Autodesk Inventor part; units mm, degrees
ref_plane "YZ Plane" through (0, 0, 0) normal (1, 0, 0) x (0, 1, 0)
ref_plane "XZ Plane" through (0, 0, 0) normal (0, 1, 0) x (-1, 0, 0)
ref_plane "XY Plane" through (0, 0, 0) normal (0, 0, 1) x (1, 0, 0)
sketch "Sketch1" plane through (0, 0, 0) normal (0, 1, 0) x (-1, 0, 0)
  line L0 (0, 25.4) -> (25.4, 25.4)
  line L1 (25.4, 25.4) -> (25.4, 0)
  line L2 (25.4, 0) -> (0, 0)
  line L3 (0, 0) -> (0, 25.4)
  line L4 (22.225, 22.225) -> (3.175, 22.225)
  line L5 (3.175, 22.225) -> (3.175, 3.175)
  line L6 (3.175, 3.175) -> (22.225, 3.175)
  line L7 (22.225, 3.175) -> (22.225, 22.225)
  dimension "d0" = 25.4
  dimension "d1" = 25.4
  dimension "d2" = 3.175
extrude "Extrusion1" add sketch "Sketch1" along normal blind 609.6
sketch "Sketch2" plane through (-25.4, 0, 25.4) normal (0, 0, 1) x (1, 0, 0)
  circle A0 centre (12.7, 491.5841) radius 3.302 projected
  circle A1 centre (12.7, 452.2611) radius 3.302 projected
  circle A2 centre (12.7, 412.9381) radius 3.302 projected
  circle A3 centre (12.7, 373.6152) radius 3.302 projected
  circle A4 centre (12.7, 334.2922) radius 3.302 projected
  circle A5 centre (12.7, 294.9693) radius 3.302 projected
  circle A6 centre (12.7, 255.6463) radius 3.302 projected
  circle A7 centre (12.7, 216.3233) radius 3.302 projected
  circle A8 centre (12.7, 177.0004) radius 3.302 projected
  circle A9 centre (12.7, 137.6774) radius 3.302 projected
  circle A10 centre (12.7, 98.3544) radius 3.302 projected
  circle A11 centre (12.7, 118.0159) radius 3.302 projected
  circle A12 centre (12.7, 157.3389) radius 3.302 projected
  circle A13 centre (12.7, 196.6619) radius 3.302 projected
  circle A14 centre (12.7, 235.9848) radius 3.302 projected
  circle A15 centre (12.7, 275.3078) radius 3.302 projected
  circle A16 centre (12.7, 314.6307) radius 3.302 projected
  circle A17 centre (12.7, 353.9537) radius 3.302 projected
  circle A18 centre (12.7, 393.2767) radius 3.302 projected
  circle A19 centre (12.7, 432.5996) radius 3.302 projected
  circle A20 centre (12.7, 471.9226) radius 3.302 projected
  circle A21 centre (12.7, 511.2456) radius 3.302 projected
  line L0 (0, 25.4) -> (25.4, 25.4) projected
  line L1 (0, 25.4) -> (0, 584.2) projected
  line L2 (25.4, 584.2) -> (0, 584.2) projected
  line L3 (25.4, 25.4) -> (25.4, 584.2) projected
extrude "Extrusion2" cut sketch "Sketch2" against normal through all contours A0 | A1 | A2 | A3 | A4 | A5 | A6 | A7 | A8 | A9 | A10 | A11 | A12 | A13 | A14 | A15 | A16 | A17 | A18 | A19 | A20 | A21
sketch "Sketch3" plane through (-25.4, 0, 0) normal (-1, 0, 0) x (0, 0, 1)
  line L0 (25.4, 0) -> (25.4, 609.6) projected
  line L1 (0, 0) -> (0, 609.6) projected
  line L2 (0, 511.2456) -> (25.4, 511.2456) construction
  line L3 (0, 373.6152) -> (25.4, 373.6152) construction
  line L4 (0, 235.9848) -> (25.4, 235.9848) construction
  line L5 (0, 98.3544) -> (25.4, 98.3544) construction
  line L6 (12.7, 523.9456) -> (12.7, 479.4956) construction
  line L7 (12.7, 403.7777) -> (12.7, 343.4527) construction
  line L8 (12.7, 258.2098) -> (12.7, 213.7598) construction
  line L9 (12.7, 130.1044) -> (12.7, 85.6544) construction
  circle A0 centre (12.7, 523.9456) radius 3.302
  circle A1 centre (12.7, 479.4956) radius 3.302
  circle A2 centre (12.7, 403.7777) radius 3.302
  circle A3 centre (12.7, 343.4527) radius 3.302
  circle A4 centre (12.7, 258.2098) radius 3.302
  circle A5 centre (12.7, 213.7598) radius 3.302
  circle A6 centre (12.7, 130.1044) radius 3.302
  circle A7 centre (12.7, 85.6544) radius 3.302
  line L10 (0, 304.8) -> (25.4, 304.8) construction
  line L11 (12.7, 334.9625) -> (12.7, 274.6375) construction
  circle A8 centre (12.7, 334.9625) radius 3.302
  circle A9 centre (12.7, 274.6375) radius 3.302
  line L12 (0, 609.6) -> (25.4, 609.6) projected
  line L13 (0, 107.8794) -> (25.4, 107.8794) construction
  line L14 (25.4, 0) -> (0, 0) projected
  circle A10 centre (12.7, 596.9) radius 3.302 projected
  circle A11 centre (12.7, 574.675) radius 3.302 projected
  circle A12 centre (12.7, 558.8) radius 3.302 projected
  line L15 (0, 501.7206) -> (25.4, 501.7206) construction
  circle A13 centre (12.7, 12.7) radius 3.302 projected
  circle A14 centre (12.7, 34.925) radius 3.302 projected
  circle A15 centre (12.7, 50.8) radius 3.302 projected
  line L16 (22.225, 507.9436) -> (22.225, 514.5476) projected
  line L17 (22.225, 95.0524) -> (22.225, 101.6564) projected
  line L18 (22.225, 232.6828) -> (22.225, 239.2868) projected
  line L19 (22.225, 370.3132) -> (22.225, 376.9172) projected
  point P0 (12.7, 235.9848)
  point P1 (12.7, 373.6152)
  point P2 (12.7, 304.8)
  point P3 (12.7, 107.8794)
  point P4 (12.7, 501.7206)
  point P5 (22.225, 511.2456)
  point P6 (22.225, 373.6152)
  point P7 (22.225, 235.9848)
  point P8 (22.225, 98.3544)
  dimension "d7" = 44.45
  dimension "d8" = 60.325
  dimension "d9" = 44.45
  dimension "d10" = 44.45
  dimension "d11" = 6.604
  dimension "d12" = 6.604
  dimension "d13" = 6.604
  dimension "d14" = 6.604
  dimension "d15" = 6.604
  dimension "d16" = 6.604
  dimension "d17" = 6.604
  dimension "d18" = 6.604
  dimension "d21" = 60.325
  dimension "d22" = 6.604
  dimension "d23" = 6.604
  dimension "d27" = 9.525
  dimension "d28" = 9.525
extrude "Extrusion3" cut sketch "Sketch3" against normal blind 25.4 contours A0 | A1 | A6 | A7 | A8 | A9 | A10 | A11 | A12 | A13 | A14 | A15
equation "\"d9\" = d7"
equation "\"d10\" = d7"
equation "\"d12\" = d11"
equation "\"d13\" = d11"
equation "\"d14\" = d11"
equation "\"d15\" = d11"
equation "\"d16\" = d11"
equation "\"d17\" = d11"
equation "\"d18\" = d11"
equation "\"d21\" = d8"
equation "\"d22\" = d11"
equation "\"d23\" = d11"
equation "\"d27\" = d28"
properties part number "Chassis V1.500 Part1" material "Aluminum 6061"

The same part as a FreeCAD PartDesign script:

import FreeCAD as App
import Part
import Sketcher
Q = App.Units.Quantity

doc = App.newDocument("Part")
body = doc.addObject("PartDesign::Body", "Body")

# Sketch on XZ plane
sketch1 = doc.addObject("Sketcher::SketchObject", "Sketch")
body.addObject(sketch1)
sketch1.AttachmentSupport = (doc.XZ_Plane, [""])
sketch1.MapMode = "FlatFace"
sketch1.addGeometry(Part.LineSegment(App.Vector(-25.4, 25.4, 0), App.Vector(0, 25.4, 0)), False)
sketch1.addGeometry(Part.LineSegment(App.Vector(0, 25.4, 0), App.Vector(0, 0, 0)), False)
sketch1.addGeometry(Part.LineSegment(App.Vector(0, 0, 0), App.Vector(-25.4, 0, 0)), False)
sketch1.addGeometry(Part.LineSegment(App.Vector(-25.4, 0, 0), App.Vector(-25.4, 25.4, 0)), False)
sketch1.addGeometry(Part.LineSegment(App.Vector(-3.175, 22.225, 0), App.Vector(-22.225, 22.225, 0)), False)
sketch1.addGeometry(Part.LineSegment(App.Vector(-22.225, 22.225, 0), App.Vector(-22.225, 3.175, 0)), False)
sketch1.addGeometry(Part.LineSegment(App.Vector(-22.225, 3.175, 0), App.Vector(-3.175, 3.175, 0)), False)
sketch1.addGeometry(Part.LineSegment(App.Vector(-3.175, 3.175, 0), App.Vector(-3.175, 22.225, 0)), False)
sketch1.addConstraint(Sketcher.Constraint("Coincident", 0, 2, 1, 1))
sketch1.addConstraint(Sketcher.Constraint("Coincident", 1, 2, 2, 1))
sketch1.addConstraint(Sketcher.Constraint("Coincident", 2, 2, 3, 1))
sketch1.addConstraint(Sketcher.Constraint("Coincident", 3, 2, 0, 1))
sketch1.addConstraint(Sketcher.Constraint("Coincident", 4, 2, 5, 1))
sketch1.addConstraint(Sketcher.Constraint("Coincident", 5, 2, 6, 1))
sketch1.addConstraint(Sketcher.Constraint("Coincident", 6, 2, 7, 1))
sketch1.addConstraint(Sketcher.Constraint("Coincident", 7, 2, 4, 1))
sketch1.addConstraint(Sketcher.Constraint("Horizontal", 0))
sketch1.addConstraint(Sketcher.Constraint("Vertical", 1))
sketch1.addConstraint(Sketcher.Constraint("Horizontal", 2))
sketch1.addConstraint(Sketcher.Constraint("Vertical", 3))
sketch1.addConstraint(Sketcher.Constraint("Horizontal", 4))
sketch1.addConstraint(Sketcher.Constraint("Vertical", 5))
sketch1.addConstraint(Sketcher.Constraint("Horizontal", 6))
sketch1.addConstraint(Sketcher.Constraint("Vertical", 7))
sketch1.addConstraint(Sketcher.Constraint("Coincident", 1, 2, -1, 1))
sketch1.addConstraint(Sketcher.Constraint("Equal", 2, 1))
sketch1.addConstraint(Sketcher.Constraint("Equal", 6, 5))
sketch1.addConstraint(Sketcher.Constraint("DistanceX", 0, 1, 0, 2, Q("1 in")))
sketch1.addConstraint(Sketcher.Constraint("DistanceY", -1, 1, 5, 2, Q("0.125 in")))
sketch1.addConstraint(Sketcher.Constraint("DistanceX", 6, 2, -1, 1, Q("0.125 in")))
sketch1.addConstraint(Sketcher.Constraint("DistanceX", 3, 2, 4, 2, Q("0.125 in")))
pad1 = doc.addObject("PartDesign::Pad", "Pad")
body.addObject(pad1)
pad1.Profile = sketch1
pad1.Length = Q("24 in")
pad1.Reversed = True

# Sketch on XY plane
sketch2 = doc.addObject("Sketcher::SketchObject", "Sketch001")
body.addObject(sketch2)
sketch2.AttachmentSupport = (doc.XY_Plane, [""])
sketch2.MapMode = "FlatFace"
sketch2.AttachmentOffset = App.Placement(App.Vector(0, 0, 1 * 25.4), App.Rotation())
sketch2.addGeometry(Part.Circle(App.Vector(-12.7, 491.5841, 0), App.Vector(0, 0, 1), 3.302), False)
sketch2.addGeometry(Part.Circle(App.Vector(-12.7, 452.2611, 0), App.Vector(0, 0, 1), 3.302), False)
sketch2.addGeometry(Part.Circle(App.Vector(-12.7, 412.9381, 0), App.Vector(0, 0, 1), 3.302), False)
sketch2.addGeometry(Part.Circle(App.Vector(-12.7, 373.6152, 0), App.Vector(0, 0, 1), 3.302), False)
sketch2.addGeometry(Part.Circle(App.Vector(-12.7, 334.2922, 0), App.Vector(0, 0, 1), 3.302), False)
sketch2.addGeometry(Part.Circle(App.Vector(-12.7, 294.9693, 0), App.Vector(0, 0, 1), 3.302), False)
sketch2.addGeometry(Part.Circle(App.Vector(-12.7, 255.6463, 0), App.Vector(0, 0, 1), 3.302), False)
sketch2.addGeometry(Part.Circle(App.Vector(-12.7, 216.3233, 0), App.Vector(0, 0, 1), 3.302), False)
sketch2.addGeometry(Part.Circle(App.Vector(-12.7, 177.0004, 0), App.Vector(0, 0, 1), 3.302), False)
sketch2.addGeometry(Part.Circle(App.Vector(-12.7, 137.6774, 0), App.Vector(0, 0, 1), 3.302), False)
sketch2.addGeometry(Part.Circle(App.Vector(-12.7, 98.3544, 0), App.Vector(0, 0, 1), 3.302), False)
sketch2.addGeometry(Part.Circle(App.Vector(-12.7, 118.0159, 0), App.Vector(0, 0, 1), 3.302), False)
sketch2.addGeometry(Part.Circle(App.Vector(-12.7, 157.3389, 0), App.Vector(0, 0, 1), 3.302), False)
sketch2.addGeometry(Part.Circle(App.Vector(-12.7, 196.6619, 0), App.Vector(0, 0, 1), 3.302), False)
sketch2.addGeometry(Part.Circle(App.Vector(-12.7, 235.9848, 0), App.Vector(0, 0, 1), 3.302), False)
sketch2.addGeometry(Part.Circle(App.Vector(-12.7, 275.3078, 0), App.Vector(0, 0, 1), 3.302), False)
sketch2.addGeometry(Part.Circle(App.Vector(-12.7, 314.6307, 0), App.Vector(0, 0, 1), 3.302), False)
sketch2.addGeometry(Part.Circle(App.Vector(-12.7, 353.9537, 0), App.Vector(0, 0, 1), 3.302), False)
sketch2.addGeometry(Part.Circle(App.Vector(-12.7, 393.2767, 0), App.Vector(0, 0, 1), 3.302), False)
sketch2.addGeometry(Part.Circle(App.Vector(-12.7, 432.5996, 0), App.Vector(0, 0, 1), 3.302), False)
sketch2.addGeometry(Part.Circle(App.Vector(-12.7, 471.9226, 0), App.Vector(0, 0, 1), 3.302), False)
sketch2.addGeometry(Part.Circle(App.Vector(-12.7, 511.2456, 0), App.Vector(0, 0, 1), 3.302), False)
sketch2.addConstraint(Sketcher.Constraint("Equal", 0, 1))
sketch2.addConstraint(Sketcher.Constraint("Equal", 1, 2))
sketch2.addConstraint(Sketcher.Constraint("Equal", 2, 3))
sketch2.addConstraint(Sketcher.Constraint("Equal", 3, 4))
sketch2.addConstraint(Sketcher.Constraint("Equal", 4, 5))
sketch2.addConstraint(Sketcher.Constraint("Equal", 5, 6))
sketch2.addConstraint(Sketcher.Constraint("Equal", 6, 7))
sketch2.addConstraint(Sketcher.Constraint("Equal", 7, 8))
sketch2.addConstraint(Sketcher.Constraint("Equal", 8, 9))
sketch2.addConstraint(Sketcher.Constraint("Equal", 9, 10))
sketch2.addConstraint(Sketcher.Constraint("Equal", 10, 11))
sketch2.addConstraint(Sketcher.Constraint("Equal", 11, 12))
sketch2.addConstraint(Sketcher.Constraint("Equal", 12, 13))
sketch2.addConstraint(Sketcher.Constraint("Equal", 13, 14))
sketch2.addConstraint(Sketcher.Constraint("Equal", 14, 15))
sketch2.addConstraint(Sketcher.Constraint("Equal", 15, 16))
sketch2.addConstraint(Sketcher.Constraint("Equal", 16, 17))
sketch2.addConstraint(Sketcher.Constraint("Equal", 17, 18))
sketch2.addConstraint(Sketcher.Constraint("Equal", 18, 19))
sketch2.addConstraint(Sketcher.Constraint("Equal", 19, 20))
sketch2.addConstraint(Sketcher.Constraint("Equal", 20, 21))
sketch2.addConstraint(Sketcher.Constraint("Vertical", 0, 3, 1, 3))
sketch2.addConstraint(Sketcher.Constraint("Vertical", 1, 3, 2, 3))
sketch2.addConstraint(Sketcher.Constraint("Vertical", 2, 3, 3, 3))
sketch2.addConstraint(Sketcher.Constraint("Vertical", 3, 3, 4, 3))
sketch2.addConstraint(Sketcher.Constraint("Vertical", 4, 3, 5, 3))
sketch2.addConstraint(Sketcher.Constraint("Vertical", 5, 3, 6, 3))
sketch2.addConstraint(Sketcher.Constraint("Vertical", 6, 3, 7, 3))
sketch2.addConstraint(Sketcher.Constraint("Vertical", 7, 3, 8, 3))
sketch2.addConstraint(Sketcher.Constraint("Vertical", 8, 3, 9, 3))
sketch2.addConstraint(Sketcher.Constraint("Vertical", 9, 3, 10, 3))
sketch2.addConstraint(Sketcher.Constraint("Vertical", 10, 3, 11, 3))
sketch2.addConstraint(Sketcher.Constraint("Vertical", 11, 3, 12, 3))
sketch2.addConstraint(Sketcher.Constraint("Vertical", 12, 3, 13, 3))
sketch2.addConstraint(Sketcher.Constraint("Vertical", 13, 3, 14, 3))
sketch2.addConstraint(Sketcher.Constraint("Vertical", 14, 3, 15, 3))
sketch2.addConstraint(Sketcher.Constraint("Vertical", 15, 3, 16, 3))
sketch2.addConstraint(Sketcher.Constraint("Vertical", 16, 3, 17, 3))
sketch2.addConstraint(Sketcher.Constraint("Vertical", 17, 3, 18, 3))
sketch2.addConstraint(Sketcher.Constraint("Vertical", 18, 3, 19, 3))
sketch2.addConstraint(Sketcher.Constraint("Vertical", 19, 3, 20, 3))
sketch2.addConstraint(Sketcher.Constraint("Vertical", 20, 3, 21, 3))
sketch2.addConstraint(Sketcher.Constraint("Diameter", 0, Q("0.26 in")))
sketch2.addConstraint(Sketcher.Constraint("DistanceX", 0, 3, -1, 1, Q("0.5 in")))
sketch2.addConstraint(Sketcher.Constraint("DistanceY", -1, 1, 0, 3, Q("19.3537 in")))
sketch2.addConstraint(Sketcher.Constraint("DistanceY", -1, 1, 2, 3, Q("16.2574 in")))
sketch2.addConstraint(Sketcher.Constraint("DistanceY", -1, 1, 4, 3, Q("13.1611 in")))
sketch2.addConstraint(Sketcher.Constraint("DistanceY", -1, 1, 11, 3, Q("4.6463 in")))
sketch2.addConstraint(Sketcher.Constraint("DistanceY", -1, 1, 13, 3, Q("7.7426 in")))
sketch2.addConstraint(Sketcher.Constraint("DistanceY", -1, 1, 15, 3, Q("10.8389 in")))
sketch2.addConstraint(Sketcher.Constraint("DistanceY", 3, 3, 1, 3, Q("3.0963 in")))
sketch2.addConstraint(Sketcher.Constraint("DistanceY", 5, 3, 3, 3, Q("3.0963 in")))
sketch2.addConstraint(Sketcher.Constraint("DistanceY", 6, 3, 4, 3, Q("3.0963 in")))
sketch2.addConstraint(Sketcher.Constraint("DistanceY", 7, 3, 5, 3, Q("3.0963 in")))
sketch2.addConstraint(Sketcher.Constraint("DistanceY", 8, 3, 6, 3, Q("3.0963 in")))
sketch2.addConstraint(Sketcher.Constraint("DistanceY", 9, 3, 7, 3, Q("3.0963 in")))
sketch2.addConstraint(Sketcher.Constraint("DistanceY", 10, 3, 8, 3, Q("3.0963 in")))
sketch2.addConstraint(Sketcher.Constraint("DistanceY", 18, 3, 20, 3, Q("3.0963 in")))
sketch2.addConstraint(Sketcher.Constraint("DistanceY", 19, 3, 21, 3, Q("3.0963 in")))
sketch2.addConstraint(Sketcher.Constraint("DistanceY", -1, 1, 1, 3, Q("452.261 mm")))
sketch2.addConstraint(Sketcher.Constraint("DistanceY", -1, 1, 12, 3, Q("157.339 mm")))
sketch2.addConstraint(Sketcher.Constraint("DistanceY", -1, 1, 14, 3, Q("235.9848 mm")))
sketch2.addConstraint(Sketcher.Constraint("DistanceY", -1, 1, 16, 3, Q("314.6307 mm")))
sketch2.addConstraint(Sketcher.Constraint("DistanceY", -1, 1, 17, 3, Q("353.9537 mm")))
sketch2.addConstraint(Sketcher.Constraint("DistanceY", -1, 1, 18, 3, Q("393.2767 mm")))
sketch2.addConstraint(Sketcher.Constraint("DistanceY", -1, 1, 19, 3, Q("432.5996 mm")))
pocket1 = doc.addObject("PartDesign::Pocket", "Pocket")
body.addObject(pocket1)
pocket1.Profile = sketch2
pocket1.Type = "ThroughAll"

# Sketch on YZ plane
sketch3 = doc.addObject("Sketcher::SketchObject", "Sketch002")
body.addObject(sketch3)
sketch3.AttachmentSupport = (doc.YZ_Plane, [""])
sketch3.MapMode = "FlatFace"
sketch3.AttachmentOffset = App.Placement(App.Vector(0, 0, -1 * 25.4), App.Rotation())
sketch3.addGeometry(Part.Circle(App.Vector(523.9456, 12.7, 0), App.Vector(0, 0, 1), 3.302), False)
sketch3.addGeometry(Part.Circle(App.Vector(479.4956, 12.7, 0), App.Vector(0, 0, 1), 3.302), False)
sketch3.addGeometry(Part.Circle(App.Vector(130.1044, 12.7, 0), App.Vector(0, 0, 1), 3.302), False)
sketch3.addGeometry(Part.Circle(App.Vector(85.6544, 12.7, 0), App.Vector(0, 0, 1), 3.302), False)
sketch3.addGeometry(Part.Circle(App.Vector(334.9625, 12.7, 0), App.Vector(0, 0, 1), 3.302), False)
sketch3.addGeometry(Part.Circle(App.Vector(274.6375, 12.7, 0), App.Vector(0, 0, 1), 3.302), False)
sketch3.addGeometry(Part.Circle(App.Vector(596.9, 12.7, 0), App.Vector(0, 0, 1), 3.302), False)
sketch3.addGeometry(Part.Circle(App.Vector(574.675, 12.7, 0), App.Vector(0, 0, 1), 3.302), False)
sketch3.addGeometry(Part.Circle(App.Vector(558.8, 12.7, 0), App.Vector(0, 0, 1), 3.302), False)
sketch3.addGeometry(Part.Circle(App.Vector(12.7, 12.7, 0), App.Vector(0, 0, 1), 3.302), False)
sketch3.addGeometry(Part.Circle(App.Vector(34.925, 12.7, 0), App.Vector(0, 0, 1), 3.302), False)
sketch3.addGeometry(Part.Circle(App.Vector(50.8, 12.7, 0), App.Vector(0, 0, 1), 3.302), False)
sketch3.addConstraint(Sketcher.Constraint("Equal", 0, 1))
sketch3.addConstraint(Sketcher.Constraint("Equal", 1, 2))
sketch3.addConstraint(Sketcher.Constraint("Equal", 2, 3))
sketch3.addConstraint(Sketcher.Constraint("Equal", 3, 4))
sketch3.addConstraint(Sketcher.Constraint("Equal", 4, 5))
sketch3.addConstraint(Sketcher.Constraint("Equal", 5, 6))
sketch3.addConstraint(Sketcher.Constraint("Equal", 6, 7))
sketch3.addConstraint(Sketcher.Constraint("Equal", 7, 8))
sketch3.addConstraint(Sketcher.Constraint("Equal", 8, 9))
sketch3.addConstraint(Sketcher.Constraint("Equal", 9, 10))
sketch3.addConstraint(Sketcher.Constraint("Equal", 10, 11))
sketch3.addConstraint(Sketcher.Constraint("Horizontal", 0, 3, 1, 3))
sketch3.addConstraint(Sketcher.Constraint("Horizontal", 1, 3, 2, 3))
sketch3.addConstraint(Sketcher.Constraint("Horizontal", 2, 3, 3, 3))
sketch3.addConstraint(Sketcher.Constraint("Horizontal", 3, 3, 4, 3))
sketch3.addConstraint(Sketcher.Constraint("Horizontal", 4, 3, 5, 3))
sketch3.addConstraint(Sketcher.Constraint("Horizontal", 5, 3, 6, 3))
sketch3.addConstraint(Sketcher.Constraint("Horizontal", 6, 3, 7, 3))
sketch3.addConstraint(Sketcher.Constraint("Horizontal", 7, 3, 8, 3))
sketch3.addConstraint(Sketcher.Constraint("Horizontal", 8, 3, 9, 3))
sketch3.addConstraint(Sketcher.Constraint("Horizontal", 9, 3, 10, 3))
sketch3.addConstraint(Sketcher.Constraint("Horizontal", 10, 3, 11, 3))
sketch3.addConstraint(Sketcher.Constraint("Diameter", 0, Q("0.26 in")))
sketch3.addConstraint(Sketcher.Constraint("DistanceX", 1, 3, 0, 3, Q("1.75 in")))
sketch3.addConstraint(Sketcher.Constraint("DistanceX", 3, 3, 2, 3, Q("1.75 in")))
sketch3.addConstraint(Sketcher.Constraint("DistanceX", -1, 1, 8, 3, Q("22 in")))
sketch3.addConstraint(Sketcher.Constraint("DistanceX", -1, 1, 11, 3, Q("2 in")))
sketch3.addConstraint(Sketcher.Constraint("DistanceX", 5, 3, 4, 3, Q("2.375 in")))
sketch3.addConstraint(Sketcher.Constraint("DistanceY", -1, 1, 0, 3, Q("0.5 in")))
sketch3.addConstraint(Sketcher.Constraint("DistanceX", -1, 1, 6, 3, Q("23.5 in")))
sketch3.addConstraint(Sketcher.Constraint("DistanceX", -1, 1, 9, 3, Q("0.5 in")))
sketch3.addConstraint(Sketcher.Constraint("DistanceX", -1, 1, 4, 3, Q("13.1875 in")))
sketch3.addConstraint(Sketcher.Constraint("DistanceX", -1, 1, 7, 3, Q("22.625 in")))
sketch3.addConstraint(Sketcher.Constraint("DistanceX", -1, 1, 10, 3, Q("1.375 in")))
sketch3.addConstraint(Sketcher.Constraint("DistanceX", -1, 1, 0, 3, Q("523.9456 mm")))
sketch3.addConstraint(Sketcher.Constraint("DistanceX", -1, 1, 2, 3, Q("130.1044 mm")))
pocket2 = doc.addObject("PartDesign::Pocket", "Pocket001")
body.addObject(pocket2)
pocket2.Profile = sketch3
pocket2.Length = Q("1 in")
pocket2.Reversed = True

doc.recompute()
